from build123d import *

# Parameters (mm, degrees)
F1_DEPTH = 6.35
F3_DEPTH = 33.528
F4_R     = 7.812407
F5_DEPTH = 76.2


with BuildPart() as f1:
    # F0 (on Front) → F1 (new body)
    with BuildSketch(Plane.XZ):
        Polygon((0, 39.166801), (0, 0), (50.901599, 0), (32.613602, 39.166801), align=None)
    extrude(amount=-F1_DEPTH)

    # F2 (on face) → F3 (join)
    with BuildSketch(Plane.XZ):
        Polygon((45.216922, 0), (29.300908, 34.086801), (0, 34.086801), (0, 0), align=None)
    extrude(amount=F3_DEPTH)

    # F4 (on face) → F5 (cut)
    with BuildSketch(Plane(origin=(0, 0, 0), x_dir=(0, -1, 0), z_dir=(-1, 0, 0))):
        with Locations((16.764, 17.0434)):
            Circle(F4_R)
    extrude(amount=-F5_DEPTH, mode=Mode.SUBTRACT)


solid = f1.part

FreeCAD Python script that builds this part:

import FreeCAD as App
import Part
import Sketcher

V = App.Vector
Q = App.Units.Quantity


def add_polygon(sketch, points):
    """Adds a closed chain of lines whose ends are joined by coincident constraints."""
    first, n = sketch.GeometryCount, len(points)
    for a, b in zip(points, points[1:] + points[:1]):
        sketch.addGeometry(Part.LineSegment(App.Vector(*a, 0), App.Vector(*b, 0)), False)
    for i in range(n):
        sketch.addConstraint(Sketcher.Constraint("Coincident", first + i, 2, first + (i + 1) % n, 1))

doc = App.newDocument("Part")
body = doc.addObject("PartDesign::Body", "Body")

# Sketch on XZ plane
sketch1 = body.newObject("Sketcher::SketchObject", "Sketch")
sketch1.AttachmentSupport = (doc.getObject("XZ_Plane"), [""])
sketch1.MapMode = "FlatFace"
add_polygon(sketch1, [(0, 39.166801), (0, 0), (50.901599, 0), (32.613602, 39.166801)])  # lines 0-3
sketch1.addConstraint([
    Sketcher.Constraint("Vertical", 0),
    Sketcher.Constraint("Horizontal", 1),
    Sketcher.Constraint("Horizontal", 3),
    Sketcher.Constraint("Coincident", 0, 2, -1, 1),
    Sketcher.Constraint("DistanceX", 1, 1, 1, 2, Q("2.004 in")),
    Sketcher.Constraint("DistanceX", 3, 2, 3, 1, Q("1.2840001 in")),
    Sketcher.Constraint("DistanceY", 0, 2, 0, 1, Q("1.542 in")),
])
pad1 = body.newObject("PartDesign::Pad", "Pad")
pad1.Profile = sketch1
pad1.Length = Q("0.25 in")
pad1.Reversed = True

# Sketch on XZ plane
sketch2 = body.newObject("Sketcher::SketchObject", "Sketch001")
sketch2.AttachmentSupport = (doc.getObject("XZ_Plane"), [""])
sketch2.MapMode = "FlatFace"
add_polygon(sketch2, [(45.216922, 0), (29.300908, 34.086801), (0, 34.086801), (0, 0)])  # lines 0-3
sketch2.addConstraint([
    Sketcher.Constraint("Horizontal", 1),
    Sketcher.Constraint("Vertical", 2),
    Sketcher.Constraint("Horizontal", 3),
    Sketcher.Constraint("Coincident", 2, 2, -1, 1),
    Sketcher.Constraint("DistanceY", 2, 2, 2, 1, Q("1.342 in")),
    Sketcher.Constraint("DistanceX", 1, 2, 1, 1, 29.300908),
    Sketcher.Constraint("DistanceX", 3, 1, 3, 2, 45.216922),
])
pad2 = body.newObject("PartDesign::Pad", "Pad001")
pad2.Profile = sketch2
pad2.Length = Q("1.32 in")

# Sketch on YZ plane
sketch3 = body.newObject("Sketcher::SketchObject", "Sketch002")
sketch3.AttachmentSupport = (doc.getObject("YZ_Plane"), [""])
sketch3.MapMode = "FlatFace"
sketch3.addGeometry(Part.Circle(V(-16.764, 17.0434, 0), V(0, 0, 1), 7.812407), False)
sketch3.addConstraint([
    Sketcher.Constraint("DistanceX", 0, 3, -1, 1, Q("0.66 in")),
    Sketcher.Constraint("DistanceY", -1, 1, 0, 3, Q("0.671 in")),
    Sketcher.Constraint("Diameter", 0, 15.624814),
])
pocket1 = body.newObject("PartDesign::Pocket", "Pocket")
pocket1.Profile = sketch3
pocket1.Length = Q("3 in")
pocket1.Reversed = True

doc.recompute()
